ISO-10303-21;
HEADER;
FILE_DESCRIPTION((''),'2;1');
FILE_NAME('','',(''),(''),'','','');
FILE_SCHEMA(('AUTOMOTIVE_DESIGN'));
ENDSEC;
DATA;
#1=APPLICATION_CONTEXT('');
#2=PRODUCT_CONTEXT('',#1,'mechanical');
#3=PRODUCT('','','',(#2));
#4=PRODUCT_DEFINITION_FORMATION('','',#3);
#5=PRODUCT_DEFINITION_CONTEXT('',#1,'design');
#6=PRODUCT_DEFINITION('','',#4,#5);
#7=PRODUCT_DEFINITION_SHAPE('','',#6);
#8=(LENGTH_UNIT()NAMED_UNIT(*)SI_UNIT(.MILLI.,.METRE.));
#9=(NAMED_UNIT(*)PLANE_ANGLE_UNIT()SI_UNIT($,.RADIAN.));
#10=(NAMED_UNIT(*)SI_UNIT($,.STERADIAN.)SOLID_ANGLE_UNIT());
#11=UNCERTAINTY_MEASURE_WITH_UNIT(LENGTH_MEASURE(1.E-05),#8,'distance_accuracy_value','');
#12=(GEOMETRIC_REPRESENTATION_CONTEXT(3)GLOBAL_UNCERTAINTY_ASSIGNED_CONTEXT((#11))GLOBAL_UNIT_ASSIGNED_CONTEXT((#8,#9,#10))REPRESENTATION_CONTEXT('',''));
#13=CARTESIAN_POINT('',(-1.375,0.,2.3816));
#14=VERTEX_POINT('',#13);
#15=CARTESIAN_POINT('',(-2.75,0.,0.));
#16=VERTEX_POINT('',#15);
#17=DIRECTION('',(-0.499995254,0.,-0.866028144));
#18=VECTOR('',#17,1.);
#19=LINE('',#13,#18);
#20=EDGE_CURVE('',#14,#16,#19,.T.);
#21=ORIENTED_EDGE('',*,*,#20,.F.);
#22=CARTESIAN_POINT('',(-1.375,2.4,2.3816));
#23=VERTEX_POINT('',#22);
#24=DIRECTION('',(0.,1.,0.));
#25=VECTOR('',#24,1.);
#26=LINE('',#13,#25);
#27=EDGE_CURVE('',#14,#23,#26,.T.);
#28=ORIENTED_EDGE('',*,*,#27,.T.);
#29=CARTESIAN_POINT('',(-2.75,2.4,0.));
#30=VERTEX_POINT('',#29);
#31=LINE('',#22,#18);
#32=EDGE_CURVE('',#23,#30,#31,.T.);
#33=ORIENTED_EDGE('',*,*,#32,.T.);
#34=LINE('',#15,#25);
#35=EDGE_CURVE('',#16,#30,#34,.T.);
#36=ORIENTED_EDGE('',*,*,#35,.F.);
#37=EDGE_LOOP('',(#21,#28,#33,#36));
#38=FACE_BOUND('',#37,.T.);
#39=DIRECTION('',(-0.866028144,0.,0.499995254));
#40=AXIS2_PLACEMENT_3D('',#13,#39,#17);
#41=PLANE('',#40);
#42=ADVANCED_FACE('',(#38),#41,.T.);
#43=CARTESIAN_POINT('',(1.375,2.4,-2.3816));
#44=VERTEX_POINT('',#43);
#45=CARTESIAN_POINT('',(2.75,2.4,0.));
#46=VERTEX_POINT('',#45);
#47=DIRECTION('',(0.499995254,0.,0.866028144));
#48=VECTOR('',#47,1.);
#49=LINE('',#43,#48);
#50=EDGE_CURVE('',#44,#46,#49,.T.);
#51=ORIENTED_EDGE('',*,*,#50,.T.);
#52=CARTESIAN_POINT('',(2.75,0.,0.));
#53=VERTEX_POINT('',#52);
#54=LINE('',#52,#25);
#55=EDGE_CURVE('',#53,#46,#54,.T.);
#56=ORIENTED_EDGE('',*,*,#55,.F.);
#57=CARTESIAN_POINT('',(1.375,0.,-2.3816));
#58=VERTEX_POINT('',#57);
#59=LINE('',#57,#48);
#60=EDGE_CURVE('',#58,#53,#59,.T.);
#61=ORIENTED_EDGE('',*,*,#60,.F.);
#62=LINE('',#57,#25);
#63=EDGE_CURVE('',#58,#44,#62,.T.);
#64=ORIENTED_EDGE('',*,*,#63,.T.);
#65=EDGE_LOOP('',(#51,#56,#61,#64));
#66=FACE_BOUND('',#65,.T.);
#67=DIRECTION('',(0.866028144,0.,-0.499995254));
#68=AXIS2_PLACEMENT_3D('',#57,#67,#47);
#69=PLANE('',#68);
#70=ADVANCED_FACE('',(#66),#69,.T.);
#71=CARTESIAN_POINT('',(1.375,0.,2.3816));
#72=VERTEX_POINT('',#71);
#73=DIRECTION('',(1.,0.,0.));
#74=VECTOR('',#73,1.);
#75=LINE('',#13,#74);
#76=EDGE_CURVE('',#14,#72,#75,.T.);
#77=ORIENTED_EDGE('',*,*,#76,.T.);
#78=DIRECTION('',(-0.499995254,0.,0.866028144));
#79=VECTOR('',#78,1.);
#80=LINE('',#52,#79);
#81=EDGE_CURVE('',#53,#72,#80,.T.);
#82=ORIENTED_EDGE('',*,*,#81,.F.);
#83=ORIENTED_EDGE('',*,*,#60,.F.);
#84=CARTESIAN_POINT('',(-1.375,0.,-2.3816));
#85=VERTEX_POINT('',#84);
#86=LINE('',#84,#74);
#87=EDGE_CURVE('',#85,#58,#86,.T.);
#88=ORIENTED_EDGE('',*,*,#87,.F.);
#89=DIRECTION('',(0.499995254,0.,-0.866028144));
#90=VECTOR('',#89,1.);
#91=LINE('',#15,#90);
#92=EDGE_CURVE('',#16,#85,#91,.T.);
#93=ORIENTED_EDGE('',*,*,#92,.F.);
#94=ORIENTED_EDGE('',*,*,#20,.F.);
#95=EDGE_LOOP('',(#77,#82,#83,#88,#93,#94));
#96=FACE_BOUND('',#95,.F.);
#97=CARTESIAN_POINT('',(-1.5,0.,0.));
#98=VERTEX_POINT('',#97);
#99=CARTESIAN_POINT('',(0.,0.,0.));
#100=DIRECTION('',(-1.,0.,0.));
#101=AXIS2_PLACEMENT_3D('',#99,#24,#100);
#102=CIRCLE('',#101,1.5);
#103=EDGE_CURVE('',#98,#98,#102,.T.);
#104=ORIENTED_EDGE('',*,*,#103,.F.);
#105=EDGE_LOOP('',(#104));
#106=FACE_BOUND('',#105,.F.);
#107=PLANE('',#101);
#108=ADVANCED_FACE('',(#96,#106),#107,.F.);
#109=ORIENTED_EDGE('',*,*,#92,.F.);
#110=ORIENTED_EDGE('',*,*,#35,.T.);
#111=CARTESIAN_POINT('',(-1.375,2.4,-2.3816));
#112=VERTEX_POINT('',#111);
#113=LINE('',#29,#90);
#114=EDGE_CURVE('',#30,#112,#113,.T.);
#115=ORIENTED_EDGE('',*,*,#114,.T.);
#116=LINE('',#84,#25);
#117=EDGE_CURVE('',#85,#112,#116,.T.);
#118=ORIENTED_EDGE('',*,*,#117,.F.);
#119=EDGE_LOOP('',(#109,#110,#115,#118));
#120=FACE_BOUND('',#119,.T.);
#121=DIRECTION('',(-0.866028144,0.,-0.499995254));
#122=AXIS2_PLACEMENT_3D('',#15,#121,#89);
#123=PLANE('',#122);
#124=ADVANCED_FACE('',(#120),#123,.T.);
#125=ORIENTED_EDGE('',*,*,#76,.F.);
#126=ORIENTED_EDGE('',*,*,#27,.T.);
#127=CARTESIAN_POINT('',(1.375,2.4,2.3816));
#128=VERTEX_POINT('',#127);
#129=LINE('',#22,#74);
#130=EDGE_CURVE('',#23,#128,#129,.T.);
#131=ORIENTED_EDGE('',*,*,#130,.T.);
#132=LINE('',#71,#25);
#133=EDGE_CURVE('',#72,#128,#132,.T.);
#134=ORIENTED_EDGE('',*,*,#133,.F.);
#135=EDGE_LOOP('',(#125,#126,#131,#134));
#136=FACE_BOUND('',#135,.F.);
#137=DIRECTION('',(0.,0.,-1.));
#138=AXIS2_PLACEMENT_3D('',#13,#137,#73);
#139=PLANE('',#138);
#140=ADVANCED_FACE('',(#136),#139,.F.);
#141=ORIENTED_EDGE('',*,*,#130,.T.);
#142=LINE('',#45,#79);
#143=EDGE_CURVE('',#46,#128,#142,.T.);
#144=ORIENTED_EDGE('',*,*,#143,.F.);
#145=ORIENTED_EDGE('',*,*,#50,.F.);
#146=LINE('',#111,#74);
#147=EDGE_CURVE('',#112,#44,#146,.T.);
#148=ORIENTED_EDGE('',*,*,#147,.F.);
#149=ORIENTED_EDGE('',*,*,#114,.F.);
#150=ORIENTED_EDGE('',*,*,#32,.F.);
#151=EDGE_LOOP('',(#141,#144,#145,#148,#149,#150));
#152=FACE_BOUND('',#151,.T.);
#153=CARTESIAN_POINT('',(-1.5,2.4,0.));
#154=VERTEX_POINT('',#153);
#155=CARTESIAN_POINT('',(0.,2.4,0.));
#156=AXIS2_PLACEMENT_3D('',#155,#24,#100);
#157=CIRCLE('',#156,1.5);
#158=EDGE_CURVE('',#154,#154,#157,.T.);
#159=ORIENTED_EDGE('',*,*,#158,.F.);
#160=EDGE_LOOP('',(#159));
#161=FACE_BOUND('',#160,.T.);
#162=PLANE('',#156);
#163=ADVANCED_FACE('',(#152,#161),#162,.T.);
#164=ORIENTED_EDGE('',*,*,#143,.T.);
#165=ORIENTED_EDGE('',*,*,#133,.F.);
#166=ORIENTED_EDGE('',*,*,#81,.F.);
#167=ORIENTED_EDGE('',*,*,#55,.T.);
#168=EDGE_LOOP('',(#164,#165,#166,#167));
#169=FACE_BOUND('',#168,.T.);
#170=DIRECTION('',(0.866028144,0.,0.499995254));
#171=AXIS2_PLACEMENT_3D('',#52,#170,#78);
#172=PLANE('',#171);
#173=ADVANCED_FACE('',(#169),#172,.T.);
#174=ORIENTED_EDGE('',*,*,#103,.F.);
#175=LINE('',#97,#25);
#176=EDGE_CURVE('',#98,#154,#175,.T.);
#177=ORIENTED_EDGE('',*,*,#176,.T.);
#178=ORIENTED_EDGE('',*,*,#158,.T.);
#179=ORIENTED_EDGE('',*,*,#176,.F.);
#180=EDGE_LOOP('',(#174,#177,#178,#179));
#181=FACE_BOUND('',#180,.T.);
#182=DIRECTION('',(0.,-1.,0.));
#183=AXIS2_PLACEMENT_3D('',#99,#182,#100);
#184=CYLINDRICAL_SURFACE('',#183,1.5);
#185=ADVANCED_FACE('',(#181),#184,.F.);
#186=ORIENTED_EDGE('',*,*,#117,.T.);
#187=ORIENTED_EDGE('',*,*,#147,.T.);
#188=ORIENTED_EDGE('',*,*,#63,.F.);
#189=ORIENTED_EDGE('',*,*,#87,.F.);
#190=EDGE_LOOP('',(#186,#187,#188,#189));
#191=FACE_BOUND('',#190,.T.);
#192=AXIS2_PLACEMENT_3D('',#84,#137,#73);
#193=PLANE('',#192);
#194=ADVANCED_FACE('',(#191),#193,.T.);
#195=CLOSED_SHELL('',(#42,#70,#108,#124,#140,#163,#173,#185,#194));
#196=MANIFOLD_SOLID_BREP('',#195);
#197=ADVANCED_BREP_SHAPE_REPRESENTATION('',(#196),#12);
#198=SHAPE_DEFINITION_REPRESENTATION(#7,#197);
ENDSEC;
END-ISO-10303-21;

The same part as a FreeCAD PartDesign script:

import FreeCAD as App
import Part
import Sketcher
Q = App.Units.Quantity

doc = App.newDocument("Part")
body = doc.addObject("PartDesign::Body", "Body")

# Sketch on XZ plane
sketch1 = doc.addObject("Sketcher::SketchObject", "Sketch")
body.addObject(sketch1)
sketch1.AttachmentSupport = (doc.XZ_Plane, [""])
sketch1.MapMode = "FlatFace"
sketch1.addGeometry(Part.LineSegment(App.Vector(-1.4, -2.4, 0), App.Vector(-2.8, 0, 0)), False)
sketch1.addGeometry(Part.LineSegment(App.Vector(-2.8, 0, 0), App.Vector(-1.4, 2.4, 0)), False)
sketch1.addGeometry(Part.LineSegment(App.Vector(-1.4, 2.4, 0), App.Vector(1.4, 2.4, 0)), False)
sketch1.addGeometry(Part.LineSegment(App.Vector(1.4, 2.4, 0), App.Vector(2.8, 0, 0)), False)
sketch1.addGeometry(Part.LineSegment(App.Vector(2.8, 0, 0), App.Vector(1.4, -2.4, 0)), False)
sketch1.addGeometry(Part.LineSegment(App.Vector(1.4, -2.4, 0), App.Vector(-1.4, -2.4, 0)), False)
sketch1.addGeometry(Part.Circle(App.Vector(0, 0, 0), App.Vector(0, 0, 1), 1.5), False)
sketch1.addConstraint(Sketcher.Constraint("Coincident", 0, 2, 1, 1))
sketch1.addConstraint(Sketcher.Constraint("Coincident", 1, 2, 2, 1))
sketch1.addConstraint(Sketcher.Constraint("Coincident", 2, 2, 3, 1))
sketch1.addConstraint(Sketcher.Constraint("Coincident", 3, 2, 4, 1))
sketch1.addConstraint(Sketcher.Constraint("Coincident", 4, 2, 5, 1))
sketch1.addConstraint(Sketcher.Constraint("Coincident", 5, 2, 0, 1))
sketch1.addConstraint(Sketcher.Constraint("Horizontal", 2))
sketch1.addConstraint(Sketcher.Constraint("Horizontal", 5))
sketch1.addConstraint(Sketcher.Constraint("Coincident", 6, 3, -1, 1))
sketch1.addConstraint(Sketcher.Constraint("Symmetric", 0, 2, 3, 2, -1, 1))
sketch1.addConstraint(Sketcher.Constraint("Symmetric", 1, 2, 4, 2, -1, 1))
sketch1.addConstraint(Sketcher.Constraint("PointOnObject", 0, 2, -1))
sketch1.addConstraint(Sketcher.Constraint("Parallel", 0, 3))
sketch1.addConstraint(Sketcher.Constraint("Vertical", 2, 2, 4, 2))
sketch1.addConstraint(Sketcher.Constraint("Diameter", 6, 3.0))
sketch1.addConstraint(Sketcher.Constraint("Angle", 0, Q("119.9997 deg")))
sketch1.addConstraint(Sketcher.Constraint("DistanceX", 2, 1, 2, 2, 2.75))
sketch1.addConstraint(Sketcher.Constraint("DistanceX", 0, 2, 3, 2, 5.5))
pad1 = doc.addObject("PartDesign::Pad", "Pad")
body.addObject(pad1)
pad1.Profile = sketch1
pad1.Length = 2.4
pad1.Reversed = True

doc.recompute()
